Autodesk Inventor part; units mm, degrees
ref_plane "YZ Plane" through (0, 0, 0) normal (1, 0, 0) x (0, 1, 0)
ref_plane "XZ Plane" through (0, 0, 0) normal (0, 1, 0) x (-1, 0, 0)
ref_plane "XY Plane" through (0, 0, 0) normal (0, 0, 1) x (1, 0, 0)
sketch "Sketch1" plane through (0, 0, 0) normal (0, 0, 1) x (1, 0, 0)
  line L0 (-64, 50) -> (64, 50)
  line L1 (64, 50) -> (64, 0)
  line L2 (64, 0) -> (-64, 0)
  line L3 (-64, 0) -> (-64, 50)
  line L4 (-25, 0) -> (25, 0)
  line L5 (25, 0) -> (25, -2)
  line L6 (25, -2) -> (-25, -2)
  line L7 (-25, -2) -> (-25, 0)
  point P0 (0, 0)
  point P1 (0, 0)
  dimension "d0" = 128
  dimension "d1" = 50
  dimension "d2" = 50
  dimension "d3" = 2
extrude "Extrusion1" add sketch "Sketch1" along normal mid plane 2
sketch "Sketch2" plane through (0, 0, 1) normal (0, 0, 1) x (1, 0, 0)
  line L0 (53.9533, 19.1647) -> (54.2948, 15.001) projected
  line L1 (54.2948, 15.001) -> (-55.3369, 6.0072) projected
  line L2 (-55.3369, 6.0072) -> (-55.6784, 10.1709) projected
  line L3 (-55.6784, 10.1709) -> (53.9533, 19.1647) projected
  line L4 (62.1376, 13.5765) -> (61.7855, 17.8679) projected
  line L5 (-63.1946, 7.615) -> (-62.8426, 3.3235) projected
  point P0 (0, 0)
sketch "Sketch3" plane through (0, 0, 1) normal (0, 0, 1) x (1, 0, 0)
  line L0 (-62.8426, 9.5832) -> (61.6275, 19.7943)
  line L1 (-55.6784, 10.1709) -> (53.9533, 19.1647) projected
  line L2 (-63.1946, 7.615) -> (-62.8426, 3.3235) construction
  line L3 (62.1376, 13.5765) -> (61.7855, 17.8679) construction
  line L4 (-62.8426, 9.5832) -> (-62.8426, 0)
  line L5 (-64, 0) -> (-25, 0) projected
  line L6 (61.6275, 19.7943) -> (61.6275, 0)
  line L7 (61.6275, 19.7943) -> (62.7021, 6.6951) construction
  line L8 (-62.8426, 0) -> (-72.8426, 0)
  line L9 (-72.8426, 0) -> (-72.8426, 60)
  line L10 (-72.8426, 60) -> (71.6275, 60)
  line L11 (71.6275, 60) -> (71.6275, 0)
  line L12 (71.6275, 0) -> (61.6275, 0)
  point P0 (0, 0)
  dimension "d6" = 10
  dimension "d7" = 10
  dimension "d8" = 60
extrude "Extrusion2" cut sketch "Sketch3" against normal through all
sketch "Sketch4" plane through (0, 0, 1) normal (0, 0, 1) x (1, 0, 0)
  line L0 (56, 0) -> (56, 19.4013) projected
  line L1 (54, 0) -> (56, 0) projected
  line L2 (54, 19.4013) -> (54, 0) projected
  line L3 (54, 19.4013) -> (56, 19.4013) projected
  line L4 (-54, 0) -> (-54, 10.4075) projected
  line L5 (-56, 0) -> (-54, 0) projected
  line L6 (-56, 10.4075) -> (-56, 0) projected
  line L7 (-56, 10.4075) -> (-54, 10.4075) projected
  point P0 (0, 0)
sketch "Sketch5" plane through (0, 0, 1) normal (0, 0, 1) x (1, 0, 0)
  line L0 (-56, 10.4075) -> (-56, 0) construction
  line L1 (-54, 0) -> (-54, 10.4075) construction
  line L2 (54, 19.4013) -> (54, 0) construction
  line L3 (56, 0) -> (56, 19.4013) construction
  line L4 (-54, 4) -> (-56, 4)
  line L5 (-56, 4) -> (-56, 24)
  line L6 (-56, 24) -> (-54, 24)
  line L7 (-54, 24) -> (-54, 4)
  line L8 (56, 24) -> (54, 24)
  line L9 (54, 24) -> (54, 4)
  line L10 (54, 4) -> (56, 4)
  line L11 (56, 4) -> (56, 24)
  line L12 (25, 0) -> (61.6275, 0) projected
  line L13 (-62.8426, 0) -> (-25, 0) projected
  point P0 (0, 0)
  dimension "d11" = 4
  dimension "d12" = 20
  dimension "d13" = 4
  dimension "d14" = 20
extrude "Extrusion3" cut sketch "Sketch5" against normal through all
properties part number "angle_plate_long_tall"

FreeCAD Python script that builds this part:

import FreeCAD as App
import Part
import Sketcher
from FreeCAD import Vector
Q = App.Units.Quantity

doc = App.newDocument("Part")
params = doc.addObject("Spreadsheet::Sheet", "Params")
for row, (alias, value) in enumerate([
    ("sketch1_width", "128 mm"),
    ("sketch1_width2", "50 mm"),
    ("sketch1_height", "2 mm"),
    ("pad1_length", "2 mm"),
    ("sketch2_width", "10 mm"),
    ("sketch2_height", "60 mm"),
    ("sketch2_length", "110 mm"),
    ("sketch2_length2", "7.7 mm"),
    ("sketch2_width2", "144.47 mm"),
    ("sketch3_height", "20 mm"),
    ("sketch3_width", "2 mm"),
], start=1):
    params.set(f"A{row}", alias)
    params.set(f"B{row}", "=" + value)
    params.setAlias(f"B{row}", alias)

body = doc.addObject("PartDesign::Body", "Body")

sketch1 = body.newObject("Sketcher::SketchObject", "Sketch")
sketch1.AttachmentSupport = (doc.getObject("XY_Plane"), [""])
sketch1.MapMode = "FlatFace"
sketch1.addGeometry(Part.LineSegment(Vector(64, 50, 0), Vector(-64, 50, 0)), False)
sketch1.addGeometry(Part.LineSegment(Vector(-64, 50, 0), Vector(-64, 0, 0)), False)
sketch1.addGeometry(Part.LineSegment(Vector(-64, 0, 0), Vector(-25, 0, 0)), False)
sketch1.addGeometry(Part.LineSegment(Vector(-25, 0, 0), Vector(-25, -2, 0)), False)
sketch1.addGeometry(Part.LineSegment(Vector(-25, -2, 0), Vector(25, -2, 0)), False)
sketch1.addGeometry(Part.LineSegment(Vector(25, -2, 0), Vector(25, 0, 0)), False)
sketch1.addGeometry(Part.LineSegment(Vector(25, 0, 0), Vector(64, 0, 0)), False)
sketch1.addGeometry(Part.LineSegment(Vector(64, 0, 0), Vector(64, 50, 0)), False)
sketch1.addConstraint(Sketcher.Constraint("Coincident", 0, 2, 1, 1))
sketch1.addConstraint(Sketcher.Constraint("Coincident", 1, 2, 2, 1))
sketch1.addConstraint(Sketcher.Constraint("Coincident", 2, 2, 3, 1))
sketch1.addConstraint(Sketcher.Constraint("Coincident", 3, 2, 4, 1))
sketch1.addConstraint(Sketcher.Constraint("Coincident", 4, 2, 5, 1))
sketch1.addConstraint(Sketcher.Constraint("Coincident", 5, 2, 6, 1))
sketch1.addConstraint(Sketcher.Constraint("Coincident", 6, 2, 7, 1))
sketch1.addConstraint(Sketcher.Constraint("Coincident", 7, 2, 0, 1))
sketch1.addConstraint(Sketcher.Constraint("Horizontal", 0))
sketch1.addConstraint(Sketcher.Constraint("Vertical", 1))
sketch1.addConstraint(Sketcher.Constraint("Horizontal", 2))
sketch1.addConstraint(Sketcher.Constraint("Vertical", 3))
sketch1.addConstraint(Sketcher.Constraint("Horizontal", 4))
sketch1.addConstraint(Sketcher.Constraint("Vertical", 5))
sketch1.addConstraint(Sketcher.Constraint("Horizontal", 6))
sketch1.addConstraint(Sketcher.Constraint("Vertical", 7))
sketch1.addConstraint(Sketcher.Constraint("Symmetric", 2, 2, 5, 2, -1, 1))
sketch1.addConstraint(Sketcher.Constraint("Symmetric", 1, 2, 6, 2, -2))
sketch1.addConstraint(Sketcher.Constraint("Equal", 4, 1))
sketch1.addConstraint(Sketcher.Constraint("DistanceX", 0, 2, 0, 1, 128.0))
sketch1.addConstraint(Sketcher.Constraint("DistanceX", 4, 1, 4, 2, 50.0))
sketch1.addConstraint(Sketcher.Constraint("DistanceY", 3, 2, 3, 1, 2.0))
sketch1.setExpression("Constraints[19]", "Params.sketch1_width")
sketch1.setExpression("Constraints[20]", "Params.sketch1_width2")
sketch1.setExpression("Constraints[21]", "Params.sketch1_height")
pad1 = body.newObject("PartDesign::Pad", "Pad")
pad1.Profile = sketch1
pad1.setExpression("Length", "Params.pad1_length")
pad1.Midplane = True

sketch2 = body.newObject("Sketcher::SketchObject", "Sketch001")
sketch2.AttachmentSupport = (doc.getObject("XY_Plane"), [""])
sketch2.MapMode = "FlatFace"
sketch2.AttachmentOffset = App.Placement(Vector(0, 0, 1), App.Rotation())
sketch2.addGeometry(Part.LineSegment(Vector(-62.8426, 0, 0), Vector(-62.8426, 9.5832, 0)), False)
sketch2.addGeometry(Part.LineSegment(Vector(-62.8426, 9.5832, 0), Vector(-55.678402, 10.170926, 0)), False)
sketch2.addGeometry(Part.LineSegment(Vector(-55.6784, 10.1709, 0), Vector(53.9533, 19.1647, 0)), False)
sketch2.addGeometry(Part.LineSegment(Vector(53.953297, 19.164735, 0), Vector(61.6275, 19.7943, 0)), False)
sketch2.addGeometry(Part.LineSegment(Vector(61.6275, 19.7943, 0), Vector(61.6275, 0, 0)), False)
sketch2.addGeometry(Part.LineSegment(Vector(61.6275, 0, 0), Vector(71.6275, 0, 0)), False)
sketch2.addGeometry(Part.LineSegment(Vector(71.6275, 0, 0), Vector(71.6275, 60, 0)), False)
sketch2.addGeometry(Part.LineSegment(Vector(71.6275, 60, 0), Vector(-72.8426, 60, 0)), False)
sketch2.addGeometry(Part.LineSegment(Vector(-72.8426, 60, 0), Vector(-72.8426, 0, 0)), False)
sketch2.addGeometry(Part.LineSegment(Vector(-72.8426, 0, 0), Vector(-62.8426, 0, 0)), False)
sketch2.addConstraint(Sketcher.Constraint("Coincident", 0, 2, 1, 1))
sketch2.addConstraint(Sketcher.Constraint("Coincident", 1, 2, 2, 1))
sketch2.addConstraint(Sketcher.Constraint("Coincident", 2, 2, 3, 1))
sketch2.addConstraint(Sketcher.Constraint("Coincident", 3, 2, 4, 1))
sketch2.addConstraint(Sketcher.Constraint("Coincident", 4, 2, 5, 1))
sketch2.addConstraint(Sketcher.Constraint("Coincident", 5, 2, 6, 1))
sketch2.addConstraint(Sketcher.Constraint("Coincident", 6, 2, 7, 1))
sketch2.addConstraint(Sketcher.Constraint("Coincident", 7, 2, 8, 1))
sketch2.addConstraint(Sketcher.Constraint("Coincident", 8, 2, 9, 1))
sketch2.addConstraint(Sketcher.Constraint("Coincident", 9, 2, 0, 1))
sketch2.addConstraint(Sketcher.Constraint("Vertical", 0))
sketch2.addConstraint(Sketcher.Constraint("Vertical", 4))
sketch2.addConstraint(Sketcher.Constraint("Horizontal", 5))
sketch2.addConstraint(Sketcher.Constraint("Vertical", 6))
sketch2.addConstraint(Sketcher.Constraint("Horizontal", 7))
sketch2.addConstraint(Sketcher.Constraint("Vertical", 8))
sketch2.addConstraint(Sketcher.Constraint("Horizontal", 9))
sketch2.addConstraint(Sketcher.Constraint("PointOnObject", 4, 2, -1))
sketch2.addConstraint(Sketcher.Constraint("PointOnObject", 8, 2, -1))
sketch2.addConstraint(Sketcher.Constraint("Parallel", 1, 2))
sketch2.addConstraint(Sketcher.Constraint("Parallel", 2, 3))
sketch2.addConstraint(Sketcher.Constraint("Equal", 5, 9))
sketch2.addConstraint(Sketcher.Constraint("DistanceX", 5, 1, 5, 2, 10.0))
sketch2.addConstraint(Sketcher.Constraint("DistanceY", 6, 1, 6, 2, 60.0))
sketch2.addConstraint(Sketcher.Constraint("Distance", 2, 110.0))
sketch2.addConstraint(Sketcher.Constraint("Distance", 3, 7.7))
sketch2.addConstraint(Sketcher.Constraint("DistanceX", 7, 2, 7, 1, 144.47))
sketch2.addConstraint(Sketcher.Constraint("Angle", 1, Q("4.6898 deg")))
sketch2.addConstraint(Sketcher.Constraint("DistanceY", 0, 1, 0, 2, 9.5832))
sketch2.addConstraint(Sketcher.Constraint("DistanceX", 0, 2, -1, 1, 62.8426))
sketch2.setExpression("Constraints[22]", "Params.sketch2_width")
sketch2.setExpression("Constraints[23]", "Params.sketch2_height")
sketch2.setExpression("Constraints[24]", "Params.sketch2_length")
sketch2.setExpression("Constraints[25]", "Params.sketch2_length2")
sketch2.setExpression("Constraints[26]", "Params.sketch2_width2")
pocket1 = body.newObject("PartDesign::Pocket", "Pocket")
pocket1.Profile = sketch2
pocket1.Type = "ThroughAll"

sketch3 = body.newObject("Sketcher::SketchObject", "Sketch002")
sketch3.AttachmentSupport = (doc.getObject("XY_Plane"), [""])
sketch3.MapMode = "FlatFace"
sketch3.AttachmentOffset = App.Placement(Vector(0, 0, 1), App.Rotation())
sketch3.addGeometry(Part.LineSegment(Vector(-56, 4, 0), Vector(-54, 4, 0)), False)
sketch3.addGeometry(Part.LineSegment(Vector(-54, 4, 0), Vector(-54, 24, 0)), False)
sketch3.addGeometry(Part.LineSegment(Vector(-54, 24, 0), Vector(-56, 24, 0)), False)
sketch3.addGeometry(Part.LineSegment(Vector(-56, 24, 0), Vector(-56, 4, 0)), False)
sketch3.addGeometry(Part.LineSegment(Vector(56, 4, 0), Vector(56, 24, 0)), False)
sketch3.addGeometry(Part.LineSegment(Vector(56, 24, 0), Vector(54, 24, 0)), False)
sketch3.addGeometry(Part.LineSegment(Vector(54, 24, 0), Vector(54, 4, 0)), False)
sketch3.addGeometry(Part.LineSegment(Vector(54, 4, 0), Vector(56, 4, 0)), False)
sketch3.addConstraint(Sketcher.Constraint("Coincident", 0, 2, 1, 1))
sketch3.addConstraint(Sketcher.Constraint("Coincident", 1, 2, 2, 1))
sketch3.addConstraint(Sketcher.Constraint("Coincident", 2, 2, 3, 1))
sketch3.addConstraint(Sketcher.Constraint("Coincident", 3, 2, 0, 1))
sketch3.addConstraint(Sketcher.Constraint("Coincident", 4, 2, 5, 1))
sketch3.addConstraint(Sketcher.Constraint("Coincident", 5, 2, 6, 1))
sketch3.addConstraint(Sketcher.Constraint("Coincident", 6, 2, 7, 1))
sketch3.addConstraint(Sketcher.Constraint("Coincident", 7, 2, 4, 1))
sketch3.addConstraint(Sketcher.Constraint("Horizontal", 0))
sketch3.addConstraint(Sketcher.Constraint("Vertical", 1))
sketch3.addConstraint(Sketcher.Constraint("Horizontal", 2))
sketch3.addConstraint(Sketcher.Constraint("Vertical", 3))
sketch3.addConstraint(Sketcher.Constraint("Vertical", 4))
sketch3.addConstraint(Sketcher.Constraint("Horizontal", 5))
sketch3.addConstraint(Sketcher.Constraint("Vertical", 6))
sketch3.addConstraint(Sketcher.Constraint("Horizontal", 7))
sketch3.addConstraint(Sketcher.Constraint("Symmetric", 2, 2, 4, 2, -2))
sketch3.addConstraint(Sketcher.Constraint("Symmetric", 0, 2, 6, 2, -2))
sketch3.addConstraint(Sketcher.Constraint("DistanceY", 1, 1, 1, 2, 20.0))
sketch3.addConstraint(Sketcher.Constraint("DistanceY", -1, 1, 0, 2, 4.0))
sketch3.addConstraint(Sketcher.Constraint("DistanceX", 0, 1, 0, 2, 2.0))
sketch3.addConstraint(Sketcher.Constraint("DistanceX", 0, 2, -1, 1, 54.0))
sketch3.setExpression("Constraints[18]", "Params.sketch3_height")
sketch3.setExpression("Constraints[20]", "Params.sketch3_width")
pocket2 = body.newObject("PartDesign::Pocket", "Pocket001")
pocket2.Profile = sketch3
pocket2.Type = "ThroughAll"

doc.recompute()
